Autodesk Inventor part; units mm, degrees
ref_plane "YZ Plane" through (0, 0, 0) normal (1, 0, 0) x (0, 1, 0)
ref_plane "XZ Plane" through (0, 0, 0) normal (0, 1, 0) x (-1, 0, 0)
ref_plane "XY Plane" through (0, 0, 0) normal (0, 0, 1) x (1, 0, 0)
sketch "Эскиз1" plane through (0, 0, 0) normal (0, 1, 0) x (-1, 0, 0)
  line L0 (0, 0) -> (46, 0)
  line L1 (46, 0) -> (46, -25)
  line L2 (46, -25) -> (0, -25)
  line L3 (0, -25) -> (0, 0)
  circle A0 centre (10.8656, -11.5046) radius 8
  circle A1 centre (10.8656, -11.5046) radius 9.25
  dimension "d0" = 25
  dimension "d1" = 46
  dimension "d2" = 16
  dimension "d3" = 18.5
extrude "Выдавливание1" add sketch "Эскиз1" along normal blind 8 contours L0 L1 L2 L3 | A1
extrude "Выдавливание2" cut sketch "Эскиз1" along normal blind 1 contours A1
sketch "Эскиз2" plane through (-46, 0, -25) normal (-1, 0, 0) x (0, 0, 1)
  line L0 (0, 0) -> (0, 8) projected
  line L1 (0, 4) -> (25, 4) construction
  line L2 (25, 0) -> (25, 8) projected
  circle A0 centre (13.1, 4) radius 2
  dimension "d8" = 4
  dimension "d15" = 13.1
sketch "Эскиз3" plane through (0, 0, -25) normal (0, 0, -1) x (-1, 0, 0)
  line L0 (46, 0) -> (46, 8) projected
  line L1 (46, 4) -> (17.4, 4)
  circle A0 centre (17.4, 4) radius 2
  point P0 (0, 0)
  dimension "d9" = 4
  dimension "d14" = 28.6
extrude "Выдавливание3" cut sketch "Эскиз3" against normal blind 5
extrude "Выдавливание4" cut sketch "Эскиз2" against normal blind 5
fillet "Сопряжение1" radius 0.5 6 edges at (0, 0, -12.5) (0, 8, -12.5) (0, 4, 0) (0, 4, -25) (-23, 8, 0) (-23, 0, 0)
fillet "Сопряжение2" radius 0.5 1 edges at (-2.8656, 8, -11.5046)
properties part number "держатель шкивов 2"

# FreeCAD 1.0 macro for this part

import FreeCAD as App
import Part
import Sketcher

V = App.Vector


def edges_at(feature, points):
    """Names of the edges that pass closest to the given points."""
    edges = feature.Shape.Edges
    near = lambda p: min(range(len(edges)), key=lambda i: edges[i].distToShape(Part.Vertex(*p))[0])
    return sorted({f"Edge{near(p) + 1}" for p in points})


def add_polygon(sketch, points):
    """Adds a closed chain of lines whose ends are joined by coincident constraints."""
    first, n = sketch.GeometryCount, len(points)
    for a, b in zip(points, points[1:] + points[:1]):
        sketch.addGeometry(Part.LineSegment(App.Vector(*a, 0), App.Vector(*b, 0)), False)
    for i in range(n):
        sketch.addConstraint(Sketcher.Constraint("Coincident", first + i, 2, first + (i + 1) % n, 1))

doc = App.newDocument("Part")
params = doc.addObject("Spreadsheet::Sheet", "Params")
for row, (alias, value) in enumerate([
    ("sketch1_diameter", "16 mm"),
    ("sketch1_width", "46 mm"),
    ("sketch1_height", "25 mm"),
    ("pad1_length", "8 mm"),
    ("sketch2_diameter", "16 mm"),
    ("sketch2_diameter2", "18.5 mm"),
    ("pocket1_length", "1 mm"),
    ("sketch3_diameter", "4 mm"),
    ("pocket2_length", "5 mm"),
    ("sketch4_diameter", "4 mm"),
    ("pocket3_length", "5 mm"),
    ("fillet_radius", "0.5 mm"),
    ("fillet2_radius", "0.5 mm"),
], start=1):
    params.set(f"A{row}", alias)
    params.set(f"B{row}", "=" + value)
    params.setAlias(f"B{row}", alias)

body = doc.addObject("PartDesign::Body", "Body")

sketch1 = body.newObject("Sketcher::SketchObject", "Sketch")
sketch1.AttachmentSupport = (doc.getObject("XZ_Plane"), [""])
sketch1.MapMode = "FlatFace"
add_polygon(sketch1, [(-46, 0), (0, 0), (0, -25), (-46, -25)])
sketch1.addGeometry(Part.Circle(V(-10.8656, -11.5046, 0), V(0, 0, 1), 8), False)
sketch1.addConstraint(Sketcher.Constraint("Horizontal", 0))
sketch1.addConstraint(Sketcher.Constraint("Vertical", 1))
sketch1.addConstraint(Sketcher.Constraint("Horizontal", 2))
sketch1.addConstraint(Sketcher.Constraint("Vertical", 3))
sketch1.addConstraint(Sketcher.Constraint("Coincident", 0, 2, -1, 1))
sketch1.addConstraint(Sketcher.Constraint("Diameter", 4, 16.0))
sketch1.addConstraint(Sketcher.Constraint("DistanceX", 0, 1, 0, 2, 46.0))
sketch1.addConstraint(Sketcher.Constraint("DistanceY", 1, 2, 1, 1, 25.0))
sketch1.addConstraint(Sketcher.Constraint("DistanceX", 4, 3, -1, 1, 10.8656))
sketch1.addConstraint(Sketcher.Constraint("DistanceY", 4, 3, -1, 1, 11.5046))
sketch1.setExpression("Constraints[9]", "Params.sketch1_diameter")
sketch1.setExpression("Constraints[10]", "Params.sketch1_width")
sketch1.setExpression("Constraints[11]", "Params.sketch1_height")
pad1 = body.newObject("PartDesign::Pad", "Pad")
pad1.Profile = sketch1
pad1.setExpression("Length", "Params.pad1_length")
pad1.Reversed = True

sketch2 = body.newObject("Sketcher::SketchObject", "Sketch001")
sketch2.AttachmentSupport = (doc.getObject("XZ_Plane"), [""])
sketch2.MapMode = "FlatFace"
sketch2.addGeometry(Part.Circle(V(-10.8656, -11.5046, 0), V(0, 0, 1), 9.25), False)
sketch2.addGeometry(Part.Circle(V(-10.8656, -11.5046, 0), V(0, 0, 1), 8), False)
sketch2.addConstraint(Sketcher.Constraint("Coincident", 1, 3, 0, 3))
sketch2.addConstraint(Sketcher.Constraint("Diameter", 1, 16.0))
sketch2.addConstraint(Sketcher.Constraint("Diameter", 0, 18.5))
sketch2.addConstraint(Sketcher.Constraint("DistanceX", 0, 3, -1, 1, 10.8656))
sketch2.addConstraint(Sketcher.Constraint("DistanceY", 0, 3, -1, 1, 11.5046))
sketch2.setExpression("Constraints[1]", "Params.sketch2_diameter")
sketch2.setExpression("Constraints[2]", "Params.sketch2_diameter2")
pocket1 = body.newObject("PartDesign::Pocket", "Pocket")
pocket1.Profile = sketch2
pocket1.setExpression("Length", "Params.pocket1_length")

sketch3 = body.newObject("Sketcher::SketchObject", "Sketch002")
sketch3.AttachmentSupport = (doc.getObject("XY_Plane"), [""])
sketch3.MapMode = "FlatFace"
sketch3.AttachmentOffset = App.Placement(V(0, 0, -25), App.Rotation())
sketch3.addGeometry(Part.Circle(V(-17.4, 4, 0), V(0, 0, 1), 2), False)
sketch3.addConstraint(Sketcher.Constraint("Diameter", 0, 4.0))
sketch3.addConstraint(Sketcher.Constraint("DistanceY", -1, 1, 0, 3, 4.0))
sketch3.addConstraint(Sketcher.Constraint("DistanceX", 0, 3, -1, 1, 17.4))
sketch3.setExpression("Constraints[0]", "Params.sketch3_diameter")
pocket2 = body.newObject("PartDesign::Pocket", "Pocket001")
pocket2.Profile = sketch3
pocket2.setExpression("Length", "Params.pocket2_length")
pocket2.Reversed = True

sketch4 = body.newObject("Sketcher::SketchObject", "Sketch003")
sketch4.AttachmentSupport = (doc.getObject("YZ_Plane"), [""])
sketch4.MapMode = "FlatFace"
sketch4.AttachmentOffset = App.Placement(V(0, 0, -46), App.Rotation())
sketch4.addGeometry(Part.Circle(V(4, -11.9, 0), V(0, 0, 1), 2), False)
sketch4.addConstraint(Sketcher.Constraint("Diameter", 0, 4.0))
sketch4.addConstraint(Sketcher.Constraint("DistanceX", -1, 1, 0, 3, 4.0))
sketch4.addConstraint(Sketcher.Constraint("DistanceY", 0, 3, -1, 1, 11.9))
sketch4.setExpression("Constraints[0]", "Params.sketch4_diameter")
pocket3 = body.newObject("PartDesign::Pocket", "Pocket002")
pocket3.Profile = sketch4
pocket3.setExpression("Length", "Params.pocket3_length")
pocket3.Reversed = True
doc.recompute()

fillet = body.newObject("PartDesign::Fillet", "Fillet")
fillet.Base = (pocket3, edges_at(pocket3, [
    (0, 0, -12.5),
    (0, 8, -12.5),
    (0, 4, 0),
    (0, 4, -25),
    (-23, 8, 0),
    (-23, 0, 0),
]))
fillet.setExpression("Radius", "Params.fillet_radius")
doc.recompute()

fillet2 = body.newObject("PartDesign::Fillet", "Fillet001")
fillet2.Base = (fillet, edges_at(fillet, [(-2.866, 8, -11.505)]))
fillet2.setExpression("Radius", "Params.fillet2_radius")

doc.recompute()
